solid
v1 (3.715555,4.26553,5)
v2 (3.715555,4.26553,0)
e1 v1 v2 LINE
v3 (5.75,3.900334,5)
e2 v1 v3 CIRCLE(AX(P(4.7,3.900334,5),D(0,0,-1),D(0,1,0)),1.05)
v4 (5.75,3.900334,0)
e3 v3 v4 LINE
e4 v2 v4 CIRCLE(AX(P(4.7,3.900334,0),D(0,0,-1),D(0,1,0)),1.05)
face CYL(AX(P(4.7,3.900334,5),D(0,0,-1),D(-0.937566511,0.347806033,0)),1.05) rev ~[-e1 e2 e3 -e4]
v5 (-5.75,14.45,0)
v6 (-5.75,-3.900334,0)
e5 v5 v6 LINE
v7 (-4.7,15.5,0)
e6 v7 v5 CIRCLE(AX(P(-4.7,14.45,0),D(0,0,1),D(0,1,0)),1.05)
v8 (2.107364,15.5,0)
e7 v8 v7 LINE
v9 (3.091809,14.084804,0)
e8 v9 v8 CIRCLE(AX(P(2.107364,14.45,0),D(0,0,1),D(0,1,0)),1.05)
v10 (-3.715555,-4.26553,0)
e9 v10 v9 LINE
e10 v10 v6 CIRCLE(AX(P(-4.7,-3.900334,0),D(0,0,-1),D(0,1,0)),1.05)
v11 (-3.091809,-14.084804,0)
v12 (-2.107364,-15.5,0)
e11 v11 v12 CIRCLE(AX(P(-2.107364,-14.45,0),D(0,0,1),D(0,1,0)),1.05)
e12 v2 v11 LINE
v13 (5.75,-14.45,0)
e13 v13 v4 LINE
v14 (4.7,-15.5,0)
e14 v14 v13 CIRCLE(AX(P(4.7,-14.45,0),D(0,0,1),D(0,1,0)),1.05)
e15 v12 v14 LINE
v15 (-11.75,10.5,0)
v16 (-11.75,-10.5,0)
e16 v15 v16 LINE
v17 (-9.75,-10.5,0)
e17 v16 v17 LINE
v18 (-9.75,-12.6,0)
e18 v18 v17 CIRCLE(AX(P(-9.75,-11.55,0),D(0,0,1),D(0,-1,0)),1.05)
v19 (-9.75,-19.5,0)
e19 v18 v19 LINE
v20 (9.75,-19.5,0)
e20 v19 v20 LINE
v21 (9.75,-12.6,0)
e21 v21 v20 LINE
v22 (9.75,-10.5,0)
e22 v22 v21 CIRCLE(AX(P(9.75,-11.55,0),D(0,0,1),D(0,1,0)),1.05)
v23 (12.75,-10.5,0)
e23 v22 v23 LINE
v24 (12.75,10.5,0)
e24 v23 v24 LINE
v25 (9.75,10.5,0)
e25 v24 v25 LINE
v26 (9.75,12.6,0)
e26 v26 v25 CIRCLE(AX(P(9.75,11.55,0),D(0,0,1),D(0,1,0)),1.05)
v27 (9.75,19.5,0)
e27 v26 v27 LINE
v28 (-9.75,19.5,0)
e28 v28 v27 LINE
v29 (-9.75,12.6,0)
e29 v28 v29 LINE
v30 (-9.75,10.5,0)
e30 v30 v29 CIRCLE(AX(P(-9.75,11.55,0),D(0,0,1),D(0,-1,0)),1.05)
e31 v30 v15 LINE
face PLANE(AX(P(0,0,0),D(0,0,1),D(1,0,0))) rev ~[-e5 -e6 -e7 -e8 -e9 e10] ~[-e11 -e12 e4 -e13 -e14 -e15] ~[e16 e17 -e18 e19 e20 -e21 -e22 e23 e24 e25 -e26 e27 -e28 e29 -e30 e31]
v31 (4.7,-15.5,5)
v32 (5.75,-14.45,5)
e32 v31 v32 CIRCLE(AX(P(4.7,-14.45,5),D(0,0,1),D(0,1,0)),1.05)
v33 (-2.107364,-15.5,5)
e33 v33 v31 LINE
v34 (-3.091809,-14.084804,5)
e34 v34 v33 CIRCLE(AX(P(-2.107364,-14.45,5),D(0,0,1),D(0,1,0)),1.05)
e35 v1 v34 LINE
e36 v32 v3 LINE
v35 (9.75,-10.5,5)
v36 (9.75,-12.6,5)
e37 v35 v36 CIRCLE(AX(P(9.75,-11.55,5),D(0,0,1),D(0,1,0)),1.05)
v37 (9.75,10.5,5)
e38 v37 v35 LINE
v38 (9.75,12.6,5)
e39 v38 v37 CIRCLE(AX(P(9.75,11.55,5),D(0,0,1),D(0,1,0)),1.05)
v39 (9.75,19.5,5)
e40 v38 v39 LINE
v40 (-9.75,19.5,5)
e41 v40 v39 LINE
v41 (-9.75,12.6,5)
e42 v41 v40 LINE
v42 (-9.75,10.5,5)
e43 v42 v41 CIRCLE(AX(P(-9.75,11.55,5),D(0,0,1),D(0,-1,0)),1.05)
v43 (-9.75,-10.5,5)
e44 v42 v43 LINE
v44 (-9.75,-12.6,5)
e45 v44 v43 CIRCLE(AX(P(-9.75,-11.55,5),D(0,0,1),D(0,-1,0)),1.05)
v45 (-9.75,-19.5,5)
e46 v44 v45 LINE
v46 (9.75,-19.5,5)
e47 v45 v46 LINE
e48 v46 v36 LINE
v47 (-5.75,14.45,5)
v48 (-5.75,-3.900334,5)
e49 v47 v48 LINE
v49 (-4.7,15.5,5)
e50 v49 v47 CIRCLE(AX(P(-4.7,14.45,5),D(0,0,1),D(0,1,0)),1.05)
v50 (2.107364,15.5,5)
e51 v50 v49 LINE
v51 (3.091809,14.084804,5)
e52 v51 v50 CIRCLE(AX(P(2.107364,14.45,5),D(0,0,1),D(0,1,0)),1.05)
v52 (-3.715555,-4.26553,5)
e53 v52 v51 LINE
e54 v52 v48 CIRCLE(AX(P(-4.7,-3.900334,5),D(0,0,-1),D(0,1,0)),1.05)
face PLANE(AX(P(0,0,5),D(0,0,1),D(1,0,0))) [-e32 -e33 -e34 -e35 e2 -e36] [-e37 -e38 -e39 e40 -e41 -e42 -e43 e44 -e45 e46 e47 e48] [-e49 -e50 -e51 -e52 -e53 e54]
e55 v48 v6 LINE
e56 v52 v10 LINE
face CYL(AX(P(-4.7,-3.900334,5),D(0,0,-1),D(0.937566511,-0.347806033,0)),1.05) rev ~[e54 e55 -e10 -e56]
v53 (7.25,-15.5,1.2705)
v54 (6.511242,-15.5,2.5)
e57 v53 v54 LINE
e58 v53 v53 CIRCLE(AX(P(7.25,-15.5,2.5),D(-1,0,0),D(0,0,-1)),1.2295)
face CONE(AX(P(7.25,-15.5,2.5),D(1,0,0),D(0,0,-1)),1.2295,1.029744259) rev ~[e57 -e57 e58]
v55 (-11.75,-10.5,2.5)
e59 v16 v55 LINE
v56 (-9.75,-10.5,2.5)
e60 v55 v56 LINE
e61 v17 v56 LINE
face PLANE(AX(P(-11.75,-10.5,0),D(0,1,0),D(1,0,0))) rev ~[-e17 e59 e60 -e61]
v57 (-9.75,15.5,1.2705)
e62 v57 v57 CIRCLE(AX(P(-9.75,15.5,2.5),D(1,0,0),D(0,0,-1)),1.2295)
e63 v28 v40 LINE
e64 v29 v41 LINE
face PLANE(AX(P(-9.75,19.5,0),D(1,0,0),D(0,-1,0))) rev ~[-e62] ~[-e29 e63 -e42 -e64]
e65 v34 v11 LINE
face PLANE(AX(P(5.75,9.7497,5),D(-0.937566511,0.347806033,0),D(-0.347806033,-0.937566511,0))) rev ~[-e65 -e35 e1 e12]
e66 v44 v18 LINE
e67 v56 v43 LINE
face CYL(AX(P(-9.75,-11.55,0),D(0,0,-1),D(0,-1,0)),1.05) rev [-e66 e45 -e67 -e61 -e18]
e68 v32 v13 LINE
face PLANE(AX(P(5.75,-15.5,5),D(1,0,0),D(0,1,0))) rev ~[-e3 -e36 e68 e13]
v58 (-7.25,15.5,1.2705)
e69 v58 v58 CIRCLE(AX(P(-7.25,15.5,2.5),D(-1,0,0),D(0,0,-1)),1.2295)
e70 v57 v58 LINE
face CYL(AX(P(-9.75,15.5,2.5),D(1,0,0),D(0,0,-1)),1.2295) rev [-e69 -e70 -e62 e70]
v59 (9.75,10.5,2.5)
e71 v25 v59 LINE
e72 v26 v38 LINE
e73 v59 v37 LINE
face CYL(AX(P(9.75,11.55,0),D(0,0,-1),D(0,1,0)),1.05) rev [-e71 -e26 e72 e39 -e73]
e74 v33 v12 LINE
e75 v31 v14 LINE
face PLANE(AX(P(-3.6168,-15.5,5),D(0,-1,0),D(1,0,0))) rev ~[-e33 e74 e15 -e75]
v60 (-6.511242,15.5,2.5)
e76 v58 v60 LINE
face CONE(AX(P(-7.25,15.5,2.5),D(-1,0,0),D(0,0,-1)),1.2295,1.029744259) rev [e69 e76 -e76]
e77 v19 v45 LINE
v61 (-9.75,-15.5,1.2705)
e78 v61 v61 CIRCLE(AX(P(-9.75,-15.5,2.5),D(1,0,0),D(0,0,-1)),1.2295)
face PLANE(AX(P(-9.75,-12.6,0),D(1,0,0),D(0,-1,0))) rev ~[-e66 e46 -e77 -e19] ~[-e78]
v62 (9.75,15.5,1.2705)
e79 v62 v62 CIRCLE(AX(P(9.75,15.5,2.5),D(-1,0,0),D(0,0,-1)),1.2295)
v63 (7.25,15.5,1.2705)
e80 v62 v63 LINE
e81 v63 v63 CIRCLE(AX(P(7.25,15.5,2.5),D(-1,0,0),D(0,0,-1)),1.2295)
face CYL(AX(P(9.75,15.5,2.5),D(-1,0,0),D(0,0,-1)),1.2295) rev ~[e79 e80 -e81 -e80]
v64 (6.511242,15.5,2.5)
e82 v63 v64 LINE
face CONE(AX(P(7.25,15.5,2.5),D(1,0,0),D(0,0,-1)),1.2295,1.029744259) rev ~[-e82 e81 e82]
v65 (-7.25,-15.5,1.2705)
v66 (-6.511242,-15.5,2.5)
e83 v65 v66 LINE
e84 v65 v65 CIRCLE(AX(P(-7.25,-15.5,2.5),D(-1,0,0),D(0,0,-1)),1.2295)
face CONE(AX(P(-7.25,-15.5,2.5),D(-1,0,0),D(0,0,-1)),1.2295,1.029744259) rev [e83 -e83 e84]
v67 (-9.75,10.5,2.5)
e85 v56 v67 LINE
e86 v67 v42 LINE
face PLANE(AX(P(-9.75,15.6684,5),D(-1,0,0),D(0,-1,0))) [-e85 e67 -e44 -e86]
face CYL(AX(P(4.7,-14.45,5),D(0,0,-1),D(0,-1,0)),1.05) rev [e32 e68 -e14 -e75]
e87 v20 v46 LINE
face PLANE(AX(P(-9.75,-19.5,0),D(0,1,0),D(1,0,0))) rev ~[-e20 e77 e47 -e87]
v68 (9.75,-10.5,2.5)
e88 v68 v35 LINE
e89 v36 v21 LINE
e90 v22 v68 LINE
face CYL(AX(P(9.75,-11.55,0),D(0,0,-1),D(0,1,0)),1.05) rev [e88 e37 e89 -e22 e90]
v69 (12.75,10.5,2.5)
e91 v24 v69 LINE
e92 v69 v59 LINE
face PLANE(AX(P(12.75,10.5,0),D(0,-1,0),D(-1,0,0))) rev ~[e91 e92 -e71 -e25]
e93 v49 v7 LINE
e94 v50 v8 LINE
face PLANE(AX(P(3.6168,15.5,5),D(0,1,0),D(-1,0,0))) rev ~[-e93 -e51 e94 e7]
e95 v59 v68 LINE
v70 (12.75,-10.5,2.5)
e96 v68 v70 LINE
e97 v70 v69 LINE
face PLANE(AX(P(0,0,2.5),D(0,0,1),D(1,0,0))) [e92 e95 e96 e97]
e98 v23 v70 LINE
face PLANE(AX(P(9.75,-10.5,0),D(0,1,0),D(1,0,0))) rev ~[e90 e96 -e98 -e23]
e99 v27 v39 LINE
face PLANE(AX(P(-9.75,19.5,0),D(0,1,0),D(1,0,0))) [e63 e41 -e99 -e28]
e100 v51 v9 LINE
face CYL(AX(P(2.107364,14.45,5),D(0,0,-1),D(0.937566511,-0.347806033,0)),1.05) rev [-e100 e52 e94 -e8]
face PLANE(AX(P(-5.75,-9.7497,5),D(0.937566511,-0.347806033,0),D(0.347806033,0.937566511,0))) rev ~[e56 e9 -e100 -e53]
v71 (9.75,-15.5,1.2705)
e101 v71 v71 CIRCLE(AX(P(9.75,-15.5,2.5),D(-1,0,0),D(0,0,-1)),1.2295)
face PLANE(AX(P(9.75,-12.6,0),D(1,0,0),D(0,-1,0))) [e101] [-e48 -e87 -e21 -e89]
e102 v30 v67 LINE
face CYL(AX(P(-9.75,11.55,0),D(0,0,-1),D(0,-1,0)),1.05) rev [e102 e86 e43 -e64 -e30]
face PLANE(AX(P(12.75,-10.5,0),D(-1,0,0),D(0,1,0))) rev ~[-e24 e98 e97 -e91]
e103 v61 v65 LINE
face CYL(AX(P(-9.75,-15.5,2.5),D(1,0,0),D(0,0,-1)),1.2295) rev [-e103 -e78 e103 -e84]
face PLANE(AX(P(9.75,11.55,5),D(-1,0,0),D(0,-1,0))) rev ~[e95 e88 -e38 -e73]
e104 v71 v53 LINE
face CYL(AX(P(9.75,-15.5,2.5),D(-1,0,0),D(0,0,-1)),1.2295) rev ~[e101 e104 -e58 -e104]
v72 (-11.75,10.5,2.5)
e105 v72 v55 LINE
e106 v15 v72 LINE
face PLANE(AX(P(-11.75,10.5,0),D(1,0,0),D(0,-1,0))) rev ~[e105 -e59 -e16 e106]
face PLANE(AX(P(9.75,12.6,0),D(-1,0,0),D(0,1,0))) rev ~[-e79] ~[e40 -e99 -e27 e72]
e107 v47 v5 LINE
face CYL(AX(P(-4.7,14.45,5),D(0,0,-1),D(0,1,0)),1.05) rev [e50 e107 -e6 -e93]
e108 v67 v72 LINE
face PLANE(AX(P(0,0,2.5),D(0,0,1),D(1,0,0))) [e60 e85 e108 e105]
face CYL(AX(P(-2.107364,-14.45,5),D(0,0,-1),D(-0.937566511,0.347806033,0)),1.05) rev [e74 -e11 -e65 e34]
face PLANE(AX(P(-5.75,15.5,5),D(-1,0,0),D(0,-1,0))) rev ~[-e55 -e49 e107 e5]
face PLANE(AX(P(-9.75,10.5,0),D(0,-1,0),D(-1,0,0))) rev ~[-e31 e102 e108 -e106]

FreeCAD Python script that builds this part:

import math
import FreeCAD as App
import Part
import Sketcher

V = App.Vector


def edges_at(feature, points):
    """Names of the edges that pass closest to the given points."""
    edges = feature.Shape.Edges
    near = lambda p: min(range(len(edges)), key=lambda i: edges[i].distToShape(Part.Vertex(*p))[0])
    return sorted({f"Edge{near(p) + 1}" for p in points})

doc = App.newDocument("Part")
params = doc.addObject("Spreadsheet::Sheet", "Params")
for row, (alias, value) in enumerate([
    ("sketch1_width", "2 mm"),
    ("sketch1_width2", "3 mm"),
    ("sketch1_radius", "1.05 mm"),
    ("sketch1_width3", "19.5 mm"),
    ("pad1_length", "5 mm"),
    ("hole_diameter", "2.459 mm"),
    ("hole_depth", "2.5 mm"),
    ("pocket1_length", "2.5 mm"),
    ("pocket2_length", "5 mm"),
    ("fillet_radius", "1.05 mm"),
], start=1):
    params.set(f"A{row}", alias)
    params.set(f"B{row}", "=" + value)
    params.setAlias(f"B{row}", alias)

body = doc.addObject("PartDesign::Body", "Body")

# Sketch on XY plane
sketch1 = body.newObject("Sketcher::SketchObject", "Sketch")
sketch1.AttachmentSupport = (doc.getObject("XY_Plane"), [""])
sketch1.MapMode = "FlatFace"
sketch1.addGeometry([
    Part.LineSegment(V(9.8, 19.5, 0), V(-9.8, 19.5, 0)),  # 0
    Part.LineSegment(V(-9.8, 19.5, 0), V(-9.8, 12.6, 0)),  # 1
    Part.ArcOfCircle(Part.Circle(V(-9.8, 11.6, 0), V(0, 0, 1), 1.1), math.radians(-90), math.radians(90)),  # 2
    Part.LineSegment(V(-9.8, 10.5, 0), V(-11.8, 10.5, 0)),  # 3
    Part.LineSegment(V(-11.8, 10.5, 0), V(-11.8, -10.5, 0)),  # 4
    Part.LineSegment(V(-11.8, -10.5, 0), V(-9.8, -10.5, 0)),  # 5
    Part.ArcOfCircle(Part.Circle(V(-9.8, -11.6, 0), V(0, 0, 1), 1.1), math.radians(-90), math.radians(90)),  # 6
    Part.LineSegment(V(-9.8, -12.6, 0), V(-9.8, -19.5, 0)),  # 7
    Part.LineSegment(V(-9.8, -19.5, 0), V(9.8, -19.5, 0)),  # 8
    Part.LineSegment(V(9.8, -19.5, 0), V(9.8, -12.6, 0)),  # 9
    Part.ArcOfCircle(Part.Circle(V(9.8, -11.6, 0), V(0, 0, 1), 1.1), math.radians(90), math.radians(270)),  # 10
    Part.LineSegment(V(9.8, -10.5, 0), V(12.8, -10.5, 0)),  # 11
    Part.LineSegment(V(12.8, -10.5, 0), V(12.8, 10.5, 0)),  # 12
    Part.LineSegment(V(12.8, 10.5, 0), V(9.8, 10.5, 0)),  # 13
    Part.ArcOfCircle(Part.Circle(V(9.8, 11.6, 0), V(0, 0, 1), 1.1), math.radians(90), math.radians(270)),  # 14
    Part.LineSegment(V(9.8, 12.6, 0), V(9.8, 19.5, 0)),  # 15
], False)
sketch1.addConstraint([
    Sketcher.Constraint("Coincident", 0, 2, 1, 1),
    Sketcher.Constraint("Coincident", 1, 2, 2, 2),
    Sketcher.Constraint("Tangent", 2, 1, 3, 1),
    Sketcher.Constraint("Coincident", 3, 2, 4, 1),
    Sketcher.Constraint("Coincident", 4, 2, 5, 1),
    Sketcher.Constraint("Tangent", 5, 2, 6, 2),
    Sketcher.Constraint("Coincident", 6, 1, 7, 1),
    Sketcher.Constraint("Coincident", 7, 2, 8, 1),
    Sketcher.Constraint("Coincident", 8, 2, 9, 1),
    Sketcher.Constraint("Coincident", 9, 2, 10, 2),
    Sketcher.Constraint("Tangent", 10, 1, 11, 1),
    Sketcher.Constraint("Coincident", 11, 2, 12, 1),
    Sketcher.Constraint("Coincident", 12, 2, 13, 1),
    Sketcher.Constraint("Tangent", 13, 2, 14, 2),
    Sketcher.Constraint("Coincident", 14, 1, 15, 1),
    Sketcher.Constraint("Coincident", 15, 2, 0, 1),
    Sketcher.Constraint("Horizontal", 0),
    Sketcher.Constraint("Vertical", 1),
    Sketcher.Constraint("Horizontal", 3),
    Sketcher.Constraint("Vertical", 4),
    Sketcher.Constraint("Horizontal", 5),
    Sketcher.Constraint("Vertical", 7),
    Sketcher.Constraint("Horizontal", 8),
    Sketcher.Constraint("Vertical", 9),
    Sketcher.Constraint("Horizontal", 11),
    Sketcher.Constraint("Vertical", 12),
    Sketcher.Constraint("Horizontal", 13),
    Sketcher.Constraint("Vertical", 15),
    Sketcher.Constraint("Equal", 2, 6),
    Sketcher.Constraint("Equal", 6, 10),
    Sketcher.Constraint("Equal", 10, 14),
    Sketcher.Constraint("Symmetric", 2, 3, 10, 3, -1, 1),
    Sketcher.Constraint("Symmetric", 6, 3, 14, 3, -1, 1),
    Sketcher.Constraint("Symmetric", 0, 2, 8, 2, -1, 1),
    Sketcher.Constraint("Symmetric", 6, 3, 10, 3, -2),
    Sketcher.Constraint("Vertical", 6, 3, 0, 2),
    Sketcher.Constraint("Vertical", 5, 2, 6, 1),
    Sketcher.Constraint("Vertical", 13, 2, 14, 1),
    Sketcher.Constraint("DistanceX", 3, 2, 3, 1, 2.0),
    Sketcher.Constraint("DistanceX", 11, 1, 11, 2, 3.0),
    Sketcher.Constraint("Radius", 2, 1.05),
    Sketcher.Constraint("DistanceX", 0, 2, 0, 1, 19.5),
    Sketcher.Constraint("DistanceY", 2, 1, 0, 2, 9.0),
    Sketcher.Constraint("DistanceY", -1, 1, 0, 2, 19.5),
])
sketch1.setExpression("Constraints[38]", "Params.sketch1_width")
sketch1.setExpression("Constraints[39]", "Params.sketch1_width2")
sketch1.setExpression("Constraints[40]", "Params.sketch1_radius")
sketch1.setExpression("Constraints[41]", "Params.sketch1_width3")
pad1 = body.newObject("PartDesign::Pad", "Pad")
pad1.Profile = sketch1
pad1.setExpression("Length", "Params.pad1_length")

# Sketch on YZ plane
sketch2 = body.newObject("Sketcher::SketchObject", "Sketch001")
sketch2.AttachmentSupport = (doc.getObject("YZ_Plane"), [""])
sketch2.MapMode = "FlatFace"
sketch2.AttachmentOffset = App.Placement(V(0, 0, 9.75), App.Rotation())
sketch2.addGeometry([
    Part.Circle(V(-15.5, 2.5, 0), V(0, 0, 1), 1.2),
    Part.Circle(V(15.5, 2.5, 0), V(0, 0, 1), 1.2),
], False)
sketch2.addConstraint([
    Sketcher.Constraint("Equal", 0, 1),
    Sketcher.Constraint("Symmetric", 0, 3, 1, 3, -2),
    Sketcher.Constraint("Diameter", 0, 2.459),
    Sketcher.Constraint("DistanceX", 0, 3, 1, 3, 31.0),
    Sketcher.Constraint("DistanceY", -1, 1, 0, 3, 2.5),
])
doc.recompute()
hole = body.newObject("PartDesign::Hole", "Hole")
hole.Profile = sketch2
hole.ThreadType = "None"
hole.setExpression("Diameter", "Params.hole_diameter")
hole.DepthType = "Dimension"
hole.setExpression("Depth", "Params.hole_depth")
hole.DrillPoint = "Angled"
hole.DrillPointAngle = 118
doc.recompute()

mirrored = body.newObject("PartDesign::Mirrored", "Mirrored")
mirrored.Originals = [hole]
mirrored.MirrorPlane = (doc.getObject("YZ_Plane"), [""])
body.Tip = mirrored

# Sketch on XY plane
sketch3 = body.newObject("Sketcher::SketchObject", "Sketch002")
sketch3.AttachmentSupport = (doc.getObject("XY_Plane"), [""])
sketch3.MapMode = "FlatFace"
sketch3.AttachmentOffset = App.Placement(V(0, 0, 5), App.Rotation())
sketch3.addGeometry([
    Part.LineSegment(V(-9.8, -16.7, 0), V(-9.8, 15.7, 0)),  # 0
    Part.LineSegment(V(-9.8, 15.7, 0), V(-14.3, 15.7, 0)),  # 1
    Part.LineSegment(V(-14.3, 15.7, 0), V(-14.3, -16.7, 0)),  # 2
    Part.LineSegment(V(-14.3, -16.7, 0), V(-9.8, -16.7, 0)),  # 3
    Part.LineSegment(V(15.2, -15.9, 0), V(15.2, 11.6, 0)),  # 4
    Part.LineSegment(V(15.2, 11.6, 0), V(9.8, 11.6, 0)),  # 5
    Part.LineSegment(V(9.8, 11.6, 0), V(9.8, -15.9, 0)),  # 6
    Part.LineSegment(V(9.8, -15.9, 0), V(15.2, -15.9, 0)),  # 7
], False)
sketch3.addConstraint([
    Sketcher.Constraint("Coincident", 0, 2, 1, 1),
    Sketcher.Constraint("Coincident", 1, 2, 2, 1),
    Sketcher.Constraint("Coincident", 2, 2, 3, 1),
    Sketcher.Constraint("Coincident", 3, 2, 0, 1),
    Sketcher.Constraint("Coincident", 4, 2, 5, 1),
    Sketcher.Constraint("Coincident", 5, 2, 6, 1),
    Sketcher.Constraint("Coincident", 6, 2, 7, 1),
    Sketcher.Constraint("Coincident", 7, 2, 4, 1),
    Sketcher.Constraint("Vertical", 0),
    Sketcher.Constraint("Horizontal", 1),
    Sketcher.Constraint("Vertical", 2),
    Sketcher.Constraint("Horizontal", 3),
    Sketcher.Constraint("Vertical", 4),
    Sketcher.Constraint("Horizontal", 5),
    Sketcher.Constraint("Vertical", 6),
    Sketcher.Constraint("Horizontal", 7),
    Sketcher.Constraint("DistanceX", 0, 2, 5, 2, 19.5),
    Sketcher.Constraint("DistanceX", 0, 2, -1, 1, 9.75),
    Sketcher.Constraint("DistanceY", -1, 1, 4, 2, 11.55),
    Sketcher.Constraint("DistanceX", 1, 2, 1, 1, 4.5807),
    Sketcher.Constraint("DistanceX", 5, 2, 5, 1, 5.4714),
    Sketcher.Constraint("DistanceY", 0, 1, 0, 2, 32.3832),
    Sketcher.Constraint("DistanceY", 4, 1, 4, 2, 27.4578),
    Sketcher.Constraint("DistanceY", 3, 2, 6, 2, 0.807),
])
pocket1 = body.newObject("PartDesign::Pocket", "Pocket")
pocket1.Profile = sketch3
pocket1.setExpression("Length", "Params.pocket1_length")

# Sketch on XY plane
sketch4 = body.newObject("Sketcher::SketchObject", "Sketch003")
sketch4.AttachmentSupport = (doc.getObject("XY_Plane"), [""])
sketch4.MapMode = "FlatFace"
sketch4.AttachmentOffset = App.Placement(V(0, 0, 5), App.Rotation())
sketch4.addGeometry([
    Part.LineSegment(V(-6, -10, 0), V(4, 16, 0)),  # 0
    Part.LineSegment(V(4, 16, 0), V(-6, 16, 0)),  # 1
    Part.LineSegment(V(-6, 16, 0), V(-6, -10, 0)),  # 2
    Part.LineSegment(V(6, 10, 0), V(-4, -16, 0)),  # 3
    Part.LineSegment(V(-4, -16, 0), V(6, -16, 0)),  # 4
    Part.LineSegment(V(6, -16, 0), V(6, 10, 0)),  # 5
], False)
sketch4.addConstraint([
    Sketcher.Constraint("Coincident", 0, 2, 1, 1),
    Sketcher.Constraint("Coincident", 1, 2, 2, 1),
    Sketcher.Constraint("Coincident", 2, 2, 0, 1),
    Sketcher.Constraint("Coincident", 3, 2, 4, 1),
    Sketcher.Constraint("Coincident", 4, 2, 5, 1),
    Sketcher.Constraint("Coincident", 5, 2, 3, 1),
    Sketcher.Constraint("Horizontal", 1),
    Sketcher.Constraint("Vertical", 2),
    Sketcher.Constraint("Horizontal", 4),
    Sketcher.Constraint("Vertical", 5),
    Sketcher.Constraint("Symmetric", 0, 2, 3, 2, -1, 1),
    Sketcher.Constraint("Symmetric", 2, 2, 5, 2, -1, 1),
    Sketcher.Constraint("DistanceY", 3, 2, 1, 2, 31.0),
    Sketcher.Constraint("DistanceX", 2, 2, 4, 2, 11.5),
    Sketcher.Constraint("Distance", 0, 26.931),
    Sketcher.Constraint("DistanceX", 1, 2, 1, 1, 9.3668),
])
pocket2 = body.newObject("PartDesign::Pocket", "Pocket001")
pocket2.Profile = sketch4
pocket2.setExpression("Length", "Params.pocket2_length")
doc.recompute()

fillet = body.newObject("PartDesign::Fillet", "Fillet")
fillet.Base = (pocket2, edges_at(pocket2, [
    (-3.617, -15.5, 2.5),
    (-5.75, 15.5, 2.5),
    (3.617, 15.5, 2.5),
    (5.75, 9.75, 2.5),
    (-5.75, -9.75, 2.5),
    (5.75, -15.5, 2.5),
]))
fillet.setExpression("Radius", "Params.fillet_radius")

doc.recompute()
